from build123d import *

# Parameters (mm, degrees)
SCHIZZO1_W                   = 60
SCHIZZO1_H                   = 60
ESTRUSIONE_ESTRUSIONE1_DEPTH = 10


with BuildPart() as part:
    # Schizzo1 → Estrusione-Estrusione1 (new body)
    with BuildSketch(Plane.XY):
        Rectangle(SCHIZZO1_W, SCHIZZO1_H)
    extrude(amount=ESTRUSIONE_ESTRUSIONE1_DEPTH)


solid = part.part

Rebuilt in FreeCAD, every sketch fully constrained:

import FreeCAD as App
import Part
import Sketcher


def add_polygon(sketch, points):
    """Adds a closed chain of lines whose ends are joined by coincident constraints."""
    first, n = sketch.GeometryCount, len(points)
    for a, b in zip(points, points[1:] + points[:1]):
        sketch.addGeometry(Part.LineSegment(App.Vector(*a, 0), App.Vector(*b, 0)), False)
    for i in range(n):
        sketch.addConstraint(Sketcher.Constraint("Coincident", first + i, 2, first + (i + 1) % n, 1))

doc = App.newDocument("Part")
body = doc.addObject("PartDesign::Body", "Body")

# Sketch on XY plane
sketch1 = body.newObject("Sketcher::SketchObject", "Sketch")
sketch1.AttachmentSupport = (doc.getObject("XY_Plane"), [""])
sketch1.MapMode = "FlatFace"
add_polygon(sketch1, [(-30, 30), (-30, -30), (30, -30), (30, 30)])  # lines 0-3
sketch1.addConstraint(Sketcher.Constraint("Vertical", 0))
sketch1.addConstraint(Sketcher.Constraint("Horizontal", 1))
sketch1.addConstraint(Sketcher.Constraint("Vertical", 2))
sketch1.addConstraint(Sketcher.Constraint("Horizontal", 3))
sketch1.addConstraint(Sketcher.Constraint("Symmetric", 0, 2, 2, 2, -1, 1))
sketch1.addConstraint(Sketcher.Constraint("Equal", 3, 0))
sketch1.addConstraint(Sketcher.Constraint("DistanceX", 1, 1, 1, 2, 60.0))
pad1 = body.newObject("PartDesign::Pad", "Pad")
pad1.Profile = sketch1
pad1.Length = 10

doc.recompute()
